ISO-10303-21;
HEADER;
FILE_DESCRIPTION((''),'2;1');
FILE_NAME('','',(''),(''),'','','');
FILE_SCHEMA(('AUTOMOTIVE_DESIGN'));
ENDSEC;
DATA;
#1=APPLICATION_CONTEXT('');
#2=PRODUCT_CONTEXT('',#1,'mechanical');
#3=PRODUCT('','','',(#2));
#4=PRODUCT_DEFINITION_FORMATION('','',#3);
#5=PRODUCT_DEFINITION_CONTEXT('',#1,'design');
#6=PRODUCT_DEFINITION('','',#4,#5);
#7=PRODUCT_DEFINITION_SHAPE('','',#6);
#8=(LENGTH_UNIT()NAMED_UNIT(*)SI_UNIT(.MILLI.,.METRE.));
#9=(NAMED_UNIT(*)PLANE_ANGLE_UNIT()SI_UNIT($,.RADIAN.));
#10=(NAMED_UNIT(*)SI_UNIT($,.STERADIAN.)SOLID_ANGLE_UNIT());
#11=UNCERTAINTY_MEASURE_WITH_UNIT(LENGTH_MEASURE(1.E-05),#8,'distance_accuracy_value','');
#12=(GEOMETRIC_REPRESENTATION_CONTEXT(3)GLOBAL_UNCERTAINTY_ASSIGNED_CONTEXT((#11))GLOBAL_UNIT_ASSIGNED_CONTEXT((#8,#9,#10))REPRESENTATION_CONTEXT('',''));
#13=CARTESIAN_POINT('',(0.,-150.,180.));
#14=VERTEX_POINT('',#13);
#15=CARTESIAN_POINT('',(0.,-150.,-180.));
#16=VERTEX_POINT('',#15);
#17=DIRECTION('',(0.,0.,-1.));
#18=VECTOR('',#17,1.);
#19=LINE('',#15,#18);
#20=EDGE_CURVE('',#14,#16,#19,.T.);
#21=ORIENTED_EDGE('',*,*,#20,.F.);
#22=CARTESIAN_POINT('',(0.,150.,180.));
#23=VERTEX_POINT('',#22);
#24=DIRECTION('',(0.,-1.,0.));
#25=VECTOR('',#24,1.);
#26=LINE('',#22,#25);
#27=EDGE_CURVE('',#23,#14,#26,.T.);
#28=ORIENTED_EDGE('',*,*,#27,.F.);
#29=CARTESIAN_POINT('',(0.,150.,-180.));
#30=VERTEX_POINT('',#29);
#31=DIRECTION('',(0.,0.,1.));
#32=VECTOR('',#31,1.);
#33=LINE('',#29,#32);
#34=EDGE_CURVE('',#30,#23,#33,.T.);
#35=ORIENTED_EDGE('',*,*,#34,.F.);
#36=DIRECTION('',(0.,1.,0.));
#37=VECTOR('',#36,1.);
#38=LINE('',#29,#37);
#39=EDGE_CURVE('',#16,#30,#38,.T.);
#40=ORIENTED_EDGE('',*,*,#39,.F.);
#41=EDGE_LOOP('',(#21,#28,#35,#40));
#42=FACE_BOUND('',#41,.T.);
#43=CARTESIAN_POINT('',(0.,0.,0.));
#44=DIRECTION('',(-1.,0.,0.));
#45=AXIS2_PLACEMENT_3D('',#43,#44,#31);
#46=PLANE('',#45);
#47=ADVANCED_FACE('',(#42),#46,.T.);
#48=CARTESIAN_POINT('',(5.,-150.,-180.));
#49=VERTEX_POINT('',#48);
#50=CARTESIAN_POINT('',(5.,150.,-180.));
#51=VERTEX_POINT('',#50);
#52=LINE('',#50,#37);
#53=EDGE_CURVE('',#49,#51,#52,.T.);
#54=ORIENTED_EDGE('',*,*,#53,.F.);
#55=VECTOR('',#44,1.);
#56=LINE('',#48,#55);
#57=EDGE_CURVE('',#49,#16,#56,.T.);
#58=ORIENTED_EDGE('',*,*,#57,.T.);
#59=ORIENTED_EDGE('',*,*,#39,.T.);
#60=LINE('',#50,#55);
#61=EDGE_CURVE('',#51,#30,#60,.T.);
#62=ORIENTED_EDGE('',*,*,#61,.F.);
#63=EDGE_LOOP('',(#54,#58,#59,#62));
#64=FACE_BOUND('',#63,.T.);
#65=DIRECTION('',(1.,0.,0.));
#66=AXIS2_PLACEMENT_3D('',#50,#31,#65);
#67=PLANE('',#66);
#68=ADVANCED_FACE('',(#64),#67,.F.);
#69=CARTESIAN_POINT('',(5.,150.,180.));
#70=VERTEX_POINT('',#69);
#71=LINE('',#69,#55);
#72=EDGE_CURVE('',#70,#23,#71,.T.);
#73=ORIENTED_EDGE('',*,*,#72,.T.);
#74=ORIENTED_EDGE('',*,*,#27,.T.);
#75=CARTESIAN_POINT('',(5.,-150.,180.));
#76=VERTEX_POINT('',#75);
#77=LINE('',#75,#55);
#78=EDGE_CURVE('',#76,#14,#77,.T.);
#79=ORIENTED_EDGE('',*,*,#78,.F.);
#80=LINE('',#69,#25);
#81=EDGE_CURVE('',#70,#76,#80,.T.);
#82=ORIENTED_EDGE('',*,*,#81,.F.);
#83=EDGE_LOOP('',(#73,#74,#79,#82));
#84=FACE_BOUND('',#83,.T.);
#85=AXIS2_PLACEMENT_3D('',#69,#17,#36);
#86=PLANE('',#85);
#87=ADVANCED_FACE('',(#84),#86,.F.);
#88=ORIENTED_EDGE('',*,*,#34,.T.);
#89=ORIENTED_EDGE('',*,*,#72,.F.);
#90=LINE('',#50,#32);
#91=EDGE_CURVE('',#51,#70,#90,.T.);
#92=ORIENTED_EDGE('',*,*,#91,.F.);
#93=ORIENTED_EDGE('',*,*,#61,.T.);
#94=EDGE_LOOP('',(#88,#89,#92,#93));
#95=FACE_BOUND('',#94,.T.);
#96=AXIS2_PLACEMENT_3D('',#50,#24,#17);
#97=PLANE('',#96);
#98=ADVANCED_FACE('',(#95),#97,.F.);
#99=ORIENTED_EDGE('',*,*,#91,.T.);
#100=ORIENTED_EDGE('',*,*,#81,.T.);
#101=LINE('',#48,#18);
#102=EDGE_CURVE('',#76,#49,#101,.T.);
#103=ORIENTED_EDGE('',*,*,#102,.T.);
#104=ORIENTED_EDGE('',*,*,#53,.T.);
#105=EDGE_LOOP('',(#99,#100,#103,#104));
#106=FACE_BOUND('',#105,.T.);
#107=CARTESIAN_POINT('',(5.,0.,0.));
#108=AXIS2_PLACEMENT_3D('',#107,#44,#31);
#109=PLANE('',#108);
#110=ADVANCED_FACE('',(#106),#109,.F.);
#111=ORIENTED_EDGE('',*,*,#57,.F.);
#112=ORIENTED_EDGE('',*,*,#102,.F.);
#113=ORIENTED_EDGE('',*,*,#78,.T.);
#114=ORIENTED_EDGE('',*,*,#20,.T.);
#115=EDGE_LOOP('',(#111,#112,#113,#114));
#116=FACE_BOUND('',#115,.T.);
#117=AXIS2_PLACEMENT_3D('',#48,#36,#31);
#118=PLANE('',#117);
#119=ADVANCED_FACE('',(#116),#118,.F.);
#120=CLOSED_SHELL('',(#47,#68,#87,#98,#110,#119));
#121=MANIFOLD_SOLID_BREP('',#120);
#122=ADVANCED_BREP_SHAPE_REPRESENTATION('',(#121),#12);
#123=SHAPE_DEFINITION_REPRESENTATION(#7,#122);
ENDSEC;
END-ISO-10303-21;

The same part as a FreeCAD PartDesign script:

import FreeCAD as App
import Part
import Sketcher

V = App.Vector


def add_polygon(sketch, points):
    """Adds a closed chain of lines whose ends are joined by coincident constraints."""
    first, n = sketch.GeometryCount, len(points)
    for a, b in zip(points, points[1:] + points[:1]):
        sketch.addGeometry(Part.LineSegment(App.Vector(*a, 0), App.Vector(*b, 0)), False)
    for i in range(n):
        sketch.addConstraint(Sketcher.Constraint("Coincident", first + i, 2, first + (i + 1) % n, 1))

doc = App.newDocument("Part")
body = doc.addObject("PartDesign::Body", "Body")

# Sketch on YZ plane
sketch1 = doc.addObject("Sketcher::SketchObject", "Sketch")
body.addObject(sketch1)
sketch1.AttachmentSupport = (doc.YZ_Plane, [""])
sketch1.MapMode = "FlatFace"
add_polygon(sketch1, [(150, 180), (-150, 180), (-150, -180), (150, -180)])  # lines 0-3
sketch1.addConstraint([
    Sketcher.Constraint("Horizontal", 0),
    Sketcher.Constraint("Vertical", 1),
    Sketcher.Constraint("Horizontal", 2),
    Sketcher.Constraint("Vertical", 3),
    Sketcher.Constraint("Symmetric", 0, 2, 2, 2, -1, 1),
    Sketcher.Constraint("DistanceX", 0, 2, 0, 1, 300.0),
    Sketcher.Constraint("DistanceY", 1, 2, 1, 1, 360.0),
])
pad1 = doc.addObject("PartDesign::Pad", "Pad")
body.addObject(pad1)
pad1.Profile = sketch1
pad1.Length = 5

doc.recompute()
